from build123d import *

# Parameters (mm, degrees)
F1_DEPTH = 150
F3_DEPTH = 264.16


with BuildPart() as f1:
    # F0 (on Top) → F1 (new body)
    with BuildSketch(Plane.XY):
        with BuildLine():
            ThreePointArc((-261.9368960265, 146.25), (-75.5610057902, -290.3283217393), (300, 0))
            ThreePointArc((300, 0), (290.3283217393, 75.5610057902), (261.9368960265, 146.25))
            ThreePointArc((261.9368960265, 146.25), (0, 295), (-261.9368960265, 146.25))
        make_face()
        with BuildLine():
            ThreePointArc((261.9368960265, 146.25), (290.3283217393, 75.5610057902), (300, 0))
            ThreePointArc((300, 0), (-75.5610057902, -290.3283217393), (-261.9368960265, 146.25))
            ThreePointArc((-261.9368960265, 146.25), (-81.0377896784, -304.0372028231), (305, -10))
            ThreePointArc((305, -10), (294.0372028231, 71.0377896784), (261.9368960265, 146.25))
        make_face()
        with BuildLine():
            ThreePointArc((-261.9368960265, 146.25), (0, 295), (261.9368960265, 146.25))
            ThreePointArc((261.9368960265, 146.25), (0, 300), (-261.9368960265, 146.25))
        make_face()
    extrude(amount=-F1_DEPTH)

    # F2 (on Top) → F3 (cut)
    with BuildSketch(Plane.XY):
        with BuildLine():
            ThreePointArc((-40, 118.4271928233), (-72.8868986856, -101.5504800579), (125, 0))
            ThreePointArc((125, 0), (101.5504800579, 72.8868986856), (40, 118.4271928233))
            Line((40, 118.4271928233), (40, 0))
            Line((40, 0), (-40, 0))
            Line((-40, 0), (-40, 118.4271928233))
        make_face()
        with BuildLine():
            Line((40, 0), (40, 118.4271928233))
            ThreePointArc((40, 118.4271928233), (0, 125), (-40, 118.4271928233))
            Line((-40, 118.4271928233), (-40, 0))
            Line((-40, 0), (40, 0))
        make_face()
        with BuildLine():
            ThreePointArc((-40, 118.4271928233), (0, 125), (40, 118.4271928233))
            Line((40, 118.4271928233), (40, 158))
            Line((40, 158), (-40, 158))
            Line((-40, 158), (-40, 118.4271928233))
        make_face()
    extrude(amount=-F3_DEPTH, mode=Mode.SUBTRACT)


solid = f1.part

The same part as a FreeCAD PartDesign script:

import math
import FreeCAD as App
import Part
import Sketcher

V = App.Vector

doc = App.newDocument("Part")
params = doc.addObject("Spreadsheet::Sheet", "Params")
for row, (alias, value) in enumerate([
    ("sketch1_radius", "305 mm"),
    ("sketch1_radius2", "300 mm"),
    ("pad1_length", "150 mm"),
    ("sketch2_radius", "125 mm"),
    ("sketch2_width", "80 mm"),
    ("pocket1_length", "264.16 mm"),
], start=1):
    params.set(f"A{row}", alias)
    params.set(f"B{row}", "=" + value)
    params.setAlias(f"B{row}", alias)

body = doc.addObject("PartDesign::Body", "Body")

sketch1 = body.newObject("Sketcher::SketchObject", "Sketch")
sketch1.AttachmentSupport = (doc.getObject("XY_Plane"), [""])
sketch1.MapMode = "FlatFace"
sketch1.addGeometry(Part.ArcOfCircle(Part.Circle(V(0, -10, 0), V(0, 0, 1), 305), math.radians(149), math.radians(391)), False)
sketch1.addGeometry(Part.ArcOfCircle(Part.Circle(V(0, 0, 0), V(0, 0, 1), 300), math.radians(29), math.radians(151)), False)
sketch1.addConstraint(Sketcher.Constraint("Coincident", 0, 1, 1, 2))
sketch1.addConstraint(Sketcher.Constraint("Coincident", 1, 1, 0, 2))
sketch1.addConstraint(Sketcher.Constraint("Coincident", 1, 3, -1, 1))
sketch1.addConstraint(Sketcher.Constraint("PointOnObject", 0, 3, -2))
sketch1.addConstraint(Sketcher.Constraint("Radius", 0, 305.0))
sketch1.addConstraint(Sketcher.Constraint("Radius", 1, 300.0))
sketch1.addConstraint(Sketcher.Constraint("DistanceY", 0, 3, -1, 1, 10.0))
sketch1.setExpression("Constraints[4]", "Params.sketch1_radius")
sketch1.setExpression("Constraints[5]", "Params.sketch1_radius2")
pad1 = body.newObject("PartDesign::Pad", "Pad")
pad1.Profile = sketch1
pad1.setExpression("Length", "Params.pad1_length")
pad1.Reversed = True

sketch2 = body.newObject("Sketcher::SketchObject", "Sketch001")
sketch2.AttachmentSupport = (doc.getObject("XY_Plane"), [""])
sketch2.MapMode = "FlatFace"
sketch2.addGeometry(Part.ArcOfCircle(Part.Circle(V(0, 0, 0), V(0, 0, 1), 125), math.radians(109), math.radians(431)), False)
sketch2.addGeometry(Part.LineSegment(V(40, 118, 0), V(40, 158, 0)), False)
sketch2.addGeometry(Part.LineSegment(V(40, 158, 0), V(-40, 158, 0)), False)
sketch2.addGeometry(Part.LineSegment(V(-40, 158, 0), V(-40, 118, 0)), False)
sketch2.addConstraint(Sketcher.Constraint("Coincident", 0, 2, 1, 1))
sketch2.addConstraint(Sketcher.Constraint("Coincident", 1, 2, 2, 1))
sketch2.addConstraint(Sketcher.Constraint("Coincident", 2, 2, 3, 1))
sketch2.addConstraint(Sketcher.Constraint("Coincident", 3, 2, 0, 1))
sketch2.addConstraint(Sketcher.Constraint("Vertical", 1))
sketch2.addConstraint(Sketcher.Constraint("Horizontal", 2))
sketch2.addConstraint(Sketcher.Constraint("Vertical", 3))
sketch2.addConstraint(Sketcher.Constraint("Coincident", 0, 3, -1, 1))
sketch2.addConstraint(Sketcher.Constraint("Horizontal", 0, 2, 3, 2))
sketch2.addConstraint(Sketcher.Constraint("Radius", 0, 125.0))
sketch2.addConstraint(Sketcher.Constraint("DistanceX", 2, 2, 2, 1, 80.0))
sketch2.addConstraint(Sketcher.Constraint("DistanceY", -1, 1, 1, 2, 158.0))
sketch2.setExpression("Constraints[9]", "Params.sketch2_radius")
sketch2.setExpression("Constraints[10]", "Params.sketch2_width")
pocket1 = body.newObject("PartDesign::Pocket", "Pocket")
pocket1.Profile = sketch2
pocket1.setExpression("Length", "Params.pocket1_length")

doc.recompute()
